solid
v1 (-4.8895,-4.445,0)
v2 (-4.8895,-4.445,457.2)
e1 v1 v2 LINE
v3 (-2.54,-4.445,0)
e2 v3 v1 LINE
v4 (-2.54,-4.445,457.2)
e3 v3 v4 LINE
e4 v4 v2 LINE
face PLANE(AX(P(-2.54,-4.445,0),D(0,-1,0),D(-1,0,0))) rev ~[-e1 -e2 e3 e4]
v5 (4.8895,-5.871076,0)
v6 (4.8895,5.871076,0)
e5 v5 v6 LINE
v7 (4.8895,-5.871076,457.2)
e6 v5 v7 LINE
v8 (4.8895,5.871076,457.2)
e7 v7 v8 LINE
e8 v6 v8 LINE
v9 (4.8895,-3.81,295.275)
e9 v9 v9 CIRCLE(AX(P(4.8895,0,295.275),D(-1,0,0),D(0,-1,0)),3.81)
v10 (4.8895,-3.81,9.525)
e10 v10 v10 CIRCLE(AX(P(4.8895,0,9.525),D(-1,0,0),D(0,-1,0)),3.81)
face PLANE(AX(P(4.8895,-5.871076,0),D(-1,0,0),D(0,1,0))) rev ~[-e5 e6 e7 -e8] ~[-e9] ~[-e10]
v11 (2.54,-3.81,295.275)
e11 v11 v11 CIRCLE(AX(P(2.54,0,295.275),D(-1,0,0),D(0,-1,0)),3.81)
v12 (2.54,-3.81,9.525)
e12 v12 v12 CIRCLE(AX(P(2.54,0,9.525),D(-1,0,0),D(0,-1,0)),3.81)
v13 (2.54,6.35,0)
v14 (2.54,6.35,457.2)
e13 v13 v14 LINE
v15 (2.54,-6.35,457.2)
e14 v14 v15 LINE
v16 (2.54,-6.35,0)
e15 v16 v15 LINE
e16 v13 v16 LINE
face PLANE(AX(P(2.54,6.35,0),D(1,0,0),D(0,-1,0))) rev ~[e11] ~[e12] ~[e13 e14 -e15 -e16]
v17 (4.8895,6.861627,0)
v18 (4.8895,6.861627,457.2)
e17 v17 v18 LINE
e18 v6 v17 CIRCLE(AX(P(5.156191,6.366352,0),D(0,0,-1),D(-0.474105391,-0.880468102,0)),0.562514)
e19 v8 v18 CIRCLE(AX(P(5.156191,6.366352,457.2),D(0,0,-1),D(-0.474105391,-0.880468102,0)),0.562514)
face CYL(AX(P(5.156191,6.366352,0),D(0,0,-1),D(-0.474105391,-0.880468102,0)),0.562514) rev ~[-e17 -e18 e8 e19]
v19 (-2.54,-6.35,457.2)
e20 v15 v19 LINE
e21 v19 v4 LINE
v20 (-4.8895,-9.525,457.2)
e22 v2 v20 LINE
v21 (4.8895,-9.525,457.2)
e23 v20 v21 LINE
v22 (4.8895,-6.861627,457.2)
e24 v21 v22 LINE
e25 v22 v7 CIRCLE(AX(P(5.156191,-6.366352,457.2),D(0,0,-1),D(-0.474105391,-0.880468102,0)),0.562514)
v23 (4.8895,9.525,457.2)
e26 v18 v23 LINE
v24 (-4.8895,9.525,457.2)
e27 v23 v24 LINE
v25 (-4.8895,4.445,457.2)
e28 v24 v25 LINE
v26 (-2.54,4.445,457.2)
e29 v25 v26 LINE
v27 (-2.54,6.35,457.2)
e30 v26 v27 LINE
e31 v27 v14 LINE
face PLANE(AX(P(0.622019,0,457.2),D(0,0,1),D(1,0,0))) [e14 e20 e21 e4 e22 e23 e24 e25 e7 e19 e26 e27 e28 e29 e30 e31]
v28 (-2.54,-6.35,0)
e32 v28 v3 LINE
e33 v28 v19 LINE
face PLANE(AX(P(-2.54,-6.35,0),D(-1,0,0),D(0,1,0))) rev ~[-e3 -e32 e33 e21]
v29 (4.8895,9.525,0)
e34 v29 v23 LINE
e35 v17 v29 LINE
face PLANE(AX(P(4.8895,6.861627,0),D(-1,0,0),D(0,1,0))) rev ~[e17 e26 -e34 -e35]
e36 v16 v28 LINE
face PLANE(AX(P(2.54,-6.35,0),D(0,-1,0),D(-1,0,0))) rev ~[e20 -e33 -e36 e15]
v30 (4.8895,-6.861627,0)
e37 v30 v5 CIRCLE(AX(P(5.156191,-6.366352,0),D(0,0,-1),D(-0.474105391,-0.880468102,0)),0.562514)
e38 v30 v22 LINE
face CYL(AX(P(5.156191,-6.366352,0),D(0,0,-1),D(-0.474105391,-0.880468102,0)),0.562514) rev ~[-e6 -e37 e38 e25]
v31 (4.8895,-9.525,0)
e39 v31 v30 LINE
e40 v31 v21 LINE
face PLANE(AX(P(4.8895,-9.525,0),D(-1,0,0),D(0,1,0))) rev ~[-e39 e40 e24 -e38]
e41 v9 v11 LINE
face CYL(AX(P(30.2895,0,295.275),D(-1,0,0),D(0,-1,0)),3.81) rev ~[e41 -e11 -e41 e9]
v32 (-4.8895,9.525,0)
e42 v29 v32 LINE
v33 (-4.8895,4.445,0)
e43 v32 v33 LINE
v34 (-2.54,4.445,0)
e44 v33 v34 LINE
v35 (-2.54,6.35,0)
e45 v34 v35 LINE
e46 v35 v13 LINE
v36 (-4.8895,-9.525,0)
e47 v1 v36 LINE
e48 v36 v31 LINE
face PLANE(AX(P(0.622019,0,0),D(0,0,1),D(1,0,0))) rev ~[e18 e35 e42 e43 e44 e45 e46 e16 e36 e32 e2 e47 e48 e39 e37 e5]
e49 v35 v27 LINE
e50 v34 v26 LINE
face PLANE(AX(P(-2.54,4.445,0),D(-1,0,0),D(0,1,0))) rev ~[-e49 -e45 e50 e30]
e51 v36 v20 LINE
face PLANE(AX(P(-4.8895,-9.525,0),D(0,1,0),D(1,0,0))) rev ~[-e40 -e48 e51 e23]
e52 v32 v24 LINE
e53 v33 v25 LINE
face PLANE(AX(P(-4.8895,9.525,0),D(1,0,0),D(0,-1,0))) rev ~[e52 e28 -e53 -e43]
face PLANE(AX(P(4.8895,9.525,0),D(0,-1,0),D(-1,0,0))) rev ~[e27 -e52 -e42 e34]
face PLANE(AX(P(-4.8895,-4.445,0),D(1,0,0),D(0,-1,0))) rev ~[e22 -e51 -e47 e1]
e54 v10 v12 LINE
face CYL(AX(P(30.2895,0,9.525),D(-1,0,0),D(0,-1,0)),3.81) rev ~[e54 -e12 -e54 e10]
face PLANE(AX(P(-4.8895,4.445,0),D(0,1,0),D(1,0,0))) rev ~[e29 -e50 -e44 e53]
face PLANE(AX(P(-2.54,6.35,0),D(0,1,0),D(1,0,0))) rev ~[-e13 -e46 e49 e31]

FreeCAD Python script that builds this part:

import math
import FreeCAD as App
import Part
import Sketcher
from FreeCAD import Vector
Q = App.Units.Quantity

doc = App.newDocument("Part")
body = doc.addObject("PartDesign::Body", "Body")

sketch1 = doc.addObject("Sketcher::SketchObject", "Sketch")
body.addObject(sketch1)
sketch1.AttachmentSupport = (doc.XY_Plane, [""])
sketch1.MapMode = "FlatFace"
sketch1.addGeometry([
    Part.LineSegment(Vector(-4.9, -9.5, 0), Vector(4.9, -9.5, 0)),
    Part.LineSegment(Vector(4.9, -9.5, 0), Vector(4.9, -6.9, 0)),
    Part.ArcOfCircle(Part.Circle(Vector(5.2, -6.4, 0), Vector(0, 0, 1), 0.6), math.radians(118), math.radians(242)),
    Part.LineSegment(Vector(4.9, -5.9, 0), Vector(4.9, 5.9, 0)),
    Part.ArcOfCircle(Part.Circle(Vector(5.2, 6.4, 0), Vector(0, 0, 1), 0.6), math.radians(118), math.radians(242)),
    Part.LineSegment(Vector(4.9, 6.9, 0), Vector(4.9, 9.5, 0)),
    Part.LineSegment(Vector(4.9, 9.5, 0), Vector(-4.9, 9.5, 0)),
    Part.LineSegment(Vector(-4.9, 9.5, 0), Vector(-4.9, 4.4, 0)),
    Part.LineSegment(Vector(-4.9, 4.4, 0), Vector(-2.5, 4.4, 0)),
    Part.LineSegment(Vector(-2.5, 4.4, 0), Vector(-2.5, 6.3, 0)),
    Part.LineSegment(Vector(-2.5, 6.3, 0), Vector(2.5, 6.3, 0)),
    Part.LineSegment(Vector(2.5, 6.3, 0), Vector(2.5, -6.3, 0)),
    Part.LineSegment(Vector(2.5, -6.3, 0), Vector(-2.5, -6.3, 0)),
    Part.LineSegment(Vector(-2.5, -6.3, 0), Vector(-2.5, -4.4, 0)),
    Part.LineSegment(Vector(-2.5, -4.4, 0), Vector(-4.9, -4.4, 0)),
    Part.LineSegment(Vector(-4.9, -4.4, 0), Vector(-4.9, -9.5, 0)),
], False)
sketch1.addConstraint([
    Sketcher.Constraint("Coincident", 0, 2, 1, 1),
    Sketcher.Constraint("Coincident", 1, 2, 2, 2),
    Sketcher.Constraint("Coincident", 2, 1, 3, 1),
    Sketcher.Constraint("Coincident", 3, 2, 4, 2),
    Sketcher.Constraint("Coincident", 4, 1, 5, 1),
    Sketcher.Constraint("Coincident", 5, 2, 6, 1),
    Sketcher.Constraint("Coincident", 6, 2, 7, 1),
    Sketcher.Constraint("Coincident", 7, 2, 8, 1),
    Sketcher.Constraint("Coincident", 8, 2, 9, 1),
    Sketcher.Constraint("Coincident", 9, 2, 10, 1),
    Sketcher.Constraint("Coincident", 10, 2, 11, 1),
    Sketcher.Constraint("Coincident", 11, 2, 12, 1),
    Sketcher.Constraint("Coincident", 12, 2, 13, 1),
    Sketcher.Constraint("Coincident", 13, 2, 14, 1),
    Sketcher.Constraint("Coincident", 14, 2, 15, 1),
    Sketcher.Constraint("Coincident", 15, 2, 0, 1),
    Sketcher.Constraint("Horizontal", 0),
    Sketcher.Constraint("Vertical", 1),
    Sketcher.Constraint("Vertical", 3),
    Sketcher.Constraint("Vertical", 5),
    Sketcher.Constraint("Horizontal", 6),
    Sketcher.Constraint("Vertical", 7),
    Sketcher.Constraint("Horizontal", 8),
    Sketcher.Constraint("Vertical", 9),
    Sketcher.Constraint("Horizontal", 10),
    Sketcher.Constraint("Vertical", 11),
    Sketcher.Constraint("Horizontal", 12),
    Sketcher.Constraint("Vertical", 13),
    Sketcher.Constraint("Horizontal", 14),
    Sketcher.Constraint("Vertical", 15),
    Sketcher.Constraint("Equal", 2, 4),
    Sketcher.Constraint("Symmetric", 0, 2, 6, 2, -1, 1),
    Sketcher.Constraint("Symmetric", 9, 2, 11, 2, -1, 1),
    Sketcher.Constraint("Symmetric", 2, 3, 4, 3, -1),
    Sketcher.Constraint("Symmetric", 8, 2, 13, 2, -1),
    Sketcher.Constraint("Vertical", 1, 2, 2, 1),
    Sketcher.Constraint("Vertical", 3, 2, 4, 1),
    Sketcher.Constraint("Vertical", 7, 2, 14, 2),
    Sketcher.Constraint("Equal", 12, 7),
    Sketcher.Constraint("DistanceX", 10, 1, 10, 2, Q("0.2 in")),
    Sketcher.Constraint("DistanceY", 11, 2, 11, 1, Q("0.5 in")),
    Sketcher.Constraint("DistanceX", 0, 1, 0, 2, Q("0.385 in")),
    Sketcher.Constraint("DistanceY", 9, 1, 9, 2, Q("0.075 in")),
    Sketcher.Constraint("Radius", 2, Q("0.562514 mm")),
    Sketcher.Constraint("DistanceY", 1, 1, 1, 2, Q("2.663373 mm")),
    Sketcher.Constraint("DistanceY", 3, 1, 3, 2, Q("11.742152 mm")),
])
pad1 = doc.addObject("PartDesign::Pad", "Pad")
body.addObject(pad1)
pad1.Profile = sketch1
pad1.Length = Q("18 in")

sketch2 = doc.addObject("Sketcher::SketchObject", "Sketch001")
body.addObject(sketch2)
sketch2.AttachmentSupport = (doc.YZ_Plane, [""])
sketch2.MapMode = "FlatFace"
sketch2.AttachmentOffset = App.Placement(Vector(0, 0, 0.1925 * 25.4), App.Rotation())
sketch2.addGeometry([
    Part.Circle(Vector(0, 9.5, 0), Vector(0, 0, 1), 3.8),
    Part.Circle(Vector(0, 295.3, 0), Vector(0, 0, 1), 3.8),
], False)
sketch2.addConstraint([
    Sketcher.Constraint("Equal", 0, 1),
    Sketcher.Constraint("PointOnObject", 0, 3, -2),
    Sketcher.Constraint("PointOnObject", 1, 3, -2),
    Sketcher.Constraint("Diameter", 0, Q("0.3 in")),
    Sketcher.Constraint("DistanceY", 0, 3, 1, 3, Q("11.25 in")),
    Sketcher.Constraint("DistanceY", -1, 1, 0, 3, Q("0.375 in")),
])
doc.recompute()
hole = doc.addObject("PartDesign::Hole", "Hole")
body.addObject(hole)
hole.Profile = sketch2
hole.ThreadType = "None"
hole.Diameter = Q("0.3 in")
hole.DepthType = "Dimension"
hole.Depth = Q("1 in")
hole.DrillPoint = "Flat"

doc.recompute()
